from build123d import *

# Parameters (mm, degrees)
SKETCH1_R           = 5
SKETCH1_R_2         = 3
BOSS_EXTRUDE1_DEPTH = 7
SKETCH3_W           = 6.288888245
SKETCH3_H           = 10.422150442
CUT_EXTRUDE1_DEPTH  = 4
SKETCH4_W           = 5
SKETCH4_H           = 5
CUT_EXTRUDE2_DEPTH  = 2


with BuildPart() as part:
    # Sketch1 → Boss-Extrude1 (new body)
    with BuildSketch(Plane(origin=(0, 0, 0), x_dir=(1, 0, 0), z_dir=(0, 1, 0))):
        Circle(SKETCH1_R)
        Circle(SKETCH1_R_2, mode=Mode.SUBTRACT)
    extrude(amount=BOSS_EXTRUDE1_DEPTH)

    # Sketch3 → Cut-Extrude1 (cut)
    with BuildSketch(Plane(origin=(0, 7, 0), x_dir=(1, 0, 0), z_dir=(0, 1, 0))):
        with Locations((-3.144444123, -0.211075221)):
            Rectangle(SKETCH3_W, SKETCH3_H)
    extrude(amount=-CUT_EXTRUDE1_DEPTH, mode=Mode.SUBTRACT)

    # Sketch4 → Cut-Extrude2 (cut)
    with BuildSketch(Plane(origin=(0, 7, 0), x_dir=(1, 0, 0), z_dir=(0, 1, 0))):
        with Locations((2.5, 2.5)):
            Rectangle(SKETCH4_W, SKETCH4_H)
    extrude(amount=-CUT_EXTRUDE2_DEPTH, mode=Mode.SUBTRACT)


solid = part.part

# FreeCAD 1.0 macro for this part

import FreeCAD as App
import Part
import Sketcher
from FreeCAD import Vector

doc = App.newDocument("Part")
params = doc.addObject("Spreadsheet::Sheet", "Params")
for row, (alias, value) in enumerate([
    ("sketch1_diameter", "10 mm"),
    ("sketch1_diameter2", "6 mm"),
    ("pad1_length", "7 mm"),
    ("pocket1_length", "4 mm"),
    ("sketch3_width", "5 mm"),
    ("pocket2_length", "2 mm"),
], start=1):
    params.set(f"A{row}", alias)
    params.set(f"B{row}", "=" + value)
    params.setAlias(f"B{row}", alias)

body = doc.addObject("PartDesign::Body", "Body")

# Sketch on XZ plane
sketch1 = doc.addObject("Sketcher::SketchObject", "Sketch")
body.addObject(sketch1)
sketch1.AttachmentSupport = (doc.XZ_Plane, [""])
sketch1.MapMode = "FlatFace"
sketch1.addGeometry([
    Part.Circle(Vector(0, 0, 0), Vector(0, 0, 1), 5),
    Part.Circle(Vector(0, 0, 0), Vector(0, 0, 1), 3),
], False)
sketch1.addConstraint([
    Sketcher.Constraint("Coincident", 0, 3, -1, 1),
    Sketcher.Constraint("Coincident", 1, 3, -1, 1),
    Sketcher.Constraint("Diameter", 0, 10.0),
    Sketcher.Constraint("Diameter", 1, 6.0),
])
sketch1.setExpression("Constraints[2]", "Params.sketch1_diameter")
sketch1.setExpression("Constraints[3]", "Params.sketch1_diameter2")
pad1 = doc.addObject("PartDesign::Pad", "Pad")
body.addObject(pad1)
pad1.Profile = sketch1
pad1.setExpression("Length", "Params.pad1_length")
pad1.Reversed = True

# Sketch on XZ plane
sketch2 = doc.addObject("Sketcher::SketchObject", "Sketch001")
body.addObject(sketch2)
sketch2.AttachmentSupport = (doc.XZ_Plane, [""])
sketch2.MapMode = "FlatFace"
sketch2.AttachmentOffset = App.Placement(Vector(0, 0, -7), App.Rotation())
sketch2.addGeometry([
    Part.LineSegment(Vector(-6.288888, -5, 0), Vector(-6.288888, 5.42215, 0)),
    Part.LineSegment(Vector(-6.288888, 5.42215, 0), Vector(0, 5.42215, 0)),
    Part.LineSegment(Vector(0, 5.42215, 0), Vector(0, -5, 0)),
    Part.LineSegment(Vector(0, -5, 0), Vector(-6.288888, -5, 0)),
], False)
sketch2.addConstraint([
    Sketcher.Constraint("Coincident", 0, 2, 1, 1),
    Sketcher.Constraint("Coincident", 1, 2, 2, 1),
    Sketcher.Constraint("Coincident", 2, 2, 3, 1),
    Sketcher.Constraint("Coincident", 3, 2, 0, 1),
    Sketcher.Constraint("Vertical", 0),
    Sketcher.Constraint("Horizontal", 1),
    Sketcher.Constraint("Vertical", 2),
    Sketcher.Constraint("Horizontal", 3),
    Sketcher.Constraint("PointOnObject", 1, 2, -2),
    Sketcher.Constraint("DistanceY", 2, 2, -1, 1, 5.0),
    Sketcher.Constraint("DistanceX", 1, 1, 1, 2, 6.288888),
    Sketcher.Constraint("DistanceY", 0, 1, 0, 2, 10.42215),
])
pocket1 = doc.addObject("PartDesign::Pocket", "Pocket")
body.addObject(pocket1)
pocket1.Profile = sketch2
pocket1.setExpression("Length", "Params.pocket1_length")
pocket1.Reversed = True

# Sketch on XZ plane
sketch3 = doc.addObject("Sketcher::SketchObject", "Sketch002")
body.addObject(sketch3)
sketch3.AttachmentSupport = (doc.XZ_Plane, [""])
sketch3.MapMode = "FlatFace"
sketch3.AttachmentOffset = App.Placement(Vector(0, 0, -7), App.Rotation())
sketch3.addGeometry([
    Part.LineSegment(Vector(0, -5, 0), Vector(0, 0, 0)),
    Part.LineSegment(Vector(0, 0, 0), Vector(5, 0, 0)),
    Part.LineSegment(Vector(5, 0, 0), Vector(5, -5, 0)),
    Part.LineSegment(Vector(5, -5, 0), Vector(0, -5, 0)),
], False)
sketch3.addConstraint([
    Sketcher.Constraint("Coincident", 0, 2, 1, 1),
    Sketcher.Constraint("Coincident", 1, 2, 2, 1),
    Sketcher.Constraint("Coincident", 2, 2, 3, 1),
    Sketcher.Constraint("Coincident", 3, 2, 0, 1),
    Sketcher.Constraint("Vertical", 0),
    Sketcher.Constraint("Horizontal", 1),
    Sketcher.Constraint("Vertical", 2),
    Sketcher.Constraint("Horizontal", 3),
    Sketcher.Constraint("Coincident", 0, 2, -1, 1),
    Sketcher.Constraint("Equal", 3, 0),
    Sketcher.Constraint("DistanceX", 1, 1, 1, 2, 5.0),
])
sketch3.setExpression("Constraints[10]", "Params.sketch3_width")
pocket2 = doc.addObject("PartDesign::Pocket", "Pocket001")
body.addObject(pocket2)
pocket2.Profile = sketch3
pocket2.setExpression("Length", "Params.pocket2_length")
pocket2.Reversed = True

doc.recompute()
